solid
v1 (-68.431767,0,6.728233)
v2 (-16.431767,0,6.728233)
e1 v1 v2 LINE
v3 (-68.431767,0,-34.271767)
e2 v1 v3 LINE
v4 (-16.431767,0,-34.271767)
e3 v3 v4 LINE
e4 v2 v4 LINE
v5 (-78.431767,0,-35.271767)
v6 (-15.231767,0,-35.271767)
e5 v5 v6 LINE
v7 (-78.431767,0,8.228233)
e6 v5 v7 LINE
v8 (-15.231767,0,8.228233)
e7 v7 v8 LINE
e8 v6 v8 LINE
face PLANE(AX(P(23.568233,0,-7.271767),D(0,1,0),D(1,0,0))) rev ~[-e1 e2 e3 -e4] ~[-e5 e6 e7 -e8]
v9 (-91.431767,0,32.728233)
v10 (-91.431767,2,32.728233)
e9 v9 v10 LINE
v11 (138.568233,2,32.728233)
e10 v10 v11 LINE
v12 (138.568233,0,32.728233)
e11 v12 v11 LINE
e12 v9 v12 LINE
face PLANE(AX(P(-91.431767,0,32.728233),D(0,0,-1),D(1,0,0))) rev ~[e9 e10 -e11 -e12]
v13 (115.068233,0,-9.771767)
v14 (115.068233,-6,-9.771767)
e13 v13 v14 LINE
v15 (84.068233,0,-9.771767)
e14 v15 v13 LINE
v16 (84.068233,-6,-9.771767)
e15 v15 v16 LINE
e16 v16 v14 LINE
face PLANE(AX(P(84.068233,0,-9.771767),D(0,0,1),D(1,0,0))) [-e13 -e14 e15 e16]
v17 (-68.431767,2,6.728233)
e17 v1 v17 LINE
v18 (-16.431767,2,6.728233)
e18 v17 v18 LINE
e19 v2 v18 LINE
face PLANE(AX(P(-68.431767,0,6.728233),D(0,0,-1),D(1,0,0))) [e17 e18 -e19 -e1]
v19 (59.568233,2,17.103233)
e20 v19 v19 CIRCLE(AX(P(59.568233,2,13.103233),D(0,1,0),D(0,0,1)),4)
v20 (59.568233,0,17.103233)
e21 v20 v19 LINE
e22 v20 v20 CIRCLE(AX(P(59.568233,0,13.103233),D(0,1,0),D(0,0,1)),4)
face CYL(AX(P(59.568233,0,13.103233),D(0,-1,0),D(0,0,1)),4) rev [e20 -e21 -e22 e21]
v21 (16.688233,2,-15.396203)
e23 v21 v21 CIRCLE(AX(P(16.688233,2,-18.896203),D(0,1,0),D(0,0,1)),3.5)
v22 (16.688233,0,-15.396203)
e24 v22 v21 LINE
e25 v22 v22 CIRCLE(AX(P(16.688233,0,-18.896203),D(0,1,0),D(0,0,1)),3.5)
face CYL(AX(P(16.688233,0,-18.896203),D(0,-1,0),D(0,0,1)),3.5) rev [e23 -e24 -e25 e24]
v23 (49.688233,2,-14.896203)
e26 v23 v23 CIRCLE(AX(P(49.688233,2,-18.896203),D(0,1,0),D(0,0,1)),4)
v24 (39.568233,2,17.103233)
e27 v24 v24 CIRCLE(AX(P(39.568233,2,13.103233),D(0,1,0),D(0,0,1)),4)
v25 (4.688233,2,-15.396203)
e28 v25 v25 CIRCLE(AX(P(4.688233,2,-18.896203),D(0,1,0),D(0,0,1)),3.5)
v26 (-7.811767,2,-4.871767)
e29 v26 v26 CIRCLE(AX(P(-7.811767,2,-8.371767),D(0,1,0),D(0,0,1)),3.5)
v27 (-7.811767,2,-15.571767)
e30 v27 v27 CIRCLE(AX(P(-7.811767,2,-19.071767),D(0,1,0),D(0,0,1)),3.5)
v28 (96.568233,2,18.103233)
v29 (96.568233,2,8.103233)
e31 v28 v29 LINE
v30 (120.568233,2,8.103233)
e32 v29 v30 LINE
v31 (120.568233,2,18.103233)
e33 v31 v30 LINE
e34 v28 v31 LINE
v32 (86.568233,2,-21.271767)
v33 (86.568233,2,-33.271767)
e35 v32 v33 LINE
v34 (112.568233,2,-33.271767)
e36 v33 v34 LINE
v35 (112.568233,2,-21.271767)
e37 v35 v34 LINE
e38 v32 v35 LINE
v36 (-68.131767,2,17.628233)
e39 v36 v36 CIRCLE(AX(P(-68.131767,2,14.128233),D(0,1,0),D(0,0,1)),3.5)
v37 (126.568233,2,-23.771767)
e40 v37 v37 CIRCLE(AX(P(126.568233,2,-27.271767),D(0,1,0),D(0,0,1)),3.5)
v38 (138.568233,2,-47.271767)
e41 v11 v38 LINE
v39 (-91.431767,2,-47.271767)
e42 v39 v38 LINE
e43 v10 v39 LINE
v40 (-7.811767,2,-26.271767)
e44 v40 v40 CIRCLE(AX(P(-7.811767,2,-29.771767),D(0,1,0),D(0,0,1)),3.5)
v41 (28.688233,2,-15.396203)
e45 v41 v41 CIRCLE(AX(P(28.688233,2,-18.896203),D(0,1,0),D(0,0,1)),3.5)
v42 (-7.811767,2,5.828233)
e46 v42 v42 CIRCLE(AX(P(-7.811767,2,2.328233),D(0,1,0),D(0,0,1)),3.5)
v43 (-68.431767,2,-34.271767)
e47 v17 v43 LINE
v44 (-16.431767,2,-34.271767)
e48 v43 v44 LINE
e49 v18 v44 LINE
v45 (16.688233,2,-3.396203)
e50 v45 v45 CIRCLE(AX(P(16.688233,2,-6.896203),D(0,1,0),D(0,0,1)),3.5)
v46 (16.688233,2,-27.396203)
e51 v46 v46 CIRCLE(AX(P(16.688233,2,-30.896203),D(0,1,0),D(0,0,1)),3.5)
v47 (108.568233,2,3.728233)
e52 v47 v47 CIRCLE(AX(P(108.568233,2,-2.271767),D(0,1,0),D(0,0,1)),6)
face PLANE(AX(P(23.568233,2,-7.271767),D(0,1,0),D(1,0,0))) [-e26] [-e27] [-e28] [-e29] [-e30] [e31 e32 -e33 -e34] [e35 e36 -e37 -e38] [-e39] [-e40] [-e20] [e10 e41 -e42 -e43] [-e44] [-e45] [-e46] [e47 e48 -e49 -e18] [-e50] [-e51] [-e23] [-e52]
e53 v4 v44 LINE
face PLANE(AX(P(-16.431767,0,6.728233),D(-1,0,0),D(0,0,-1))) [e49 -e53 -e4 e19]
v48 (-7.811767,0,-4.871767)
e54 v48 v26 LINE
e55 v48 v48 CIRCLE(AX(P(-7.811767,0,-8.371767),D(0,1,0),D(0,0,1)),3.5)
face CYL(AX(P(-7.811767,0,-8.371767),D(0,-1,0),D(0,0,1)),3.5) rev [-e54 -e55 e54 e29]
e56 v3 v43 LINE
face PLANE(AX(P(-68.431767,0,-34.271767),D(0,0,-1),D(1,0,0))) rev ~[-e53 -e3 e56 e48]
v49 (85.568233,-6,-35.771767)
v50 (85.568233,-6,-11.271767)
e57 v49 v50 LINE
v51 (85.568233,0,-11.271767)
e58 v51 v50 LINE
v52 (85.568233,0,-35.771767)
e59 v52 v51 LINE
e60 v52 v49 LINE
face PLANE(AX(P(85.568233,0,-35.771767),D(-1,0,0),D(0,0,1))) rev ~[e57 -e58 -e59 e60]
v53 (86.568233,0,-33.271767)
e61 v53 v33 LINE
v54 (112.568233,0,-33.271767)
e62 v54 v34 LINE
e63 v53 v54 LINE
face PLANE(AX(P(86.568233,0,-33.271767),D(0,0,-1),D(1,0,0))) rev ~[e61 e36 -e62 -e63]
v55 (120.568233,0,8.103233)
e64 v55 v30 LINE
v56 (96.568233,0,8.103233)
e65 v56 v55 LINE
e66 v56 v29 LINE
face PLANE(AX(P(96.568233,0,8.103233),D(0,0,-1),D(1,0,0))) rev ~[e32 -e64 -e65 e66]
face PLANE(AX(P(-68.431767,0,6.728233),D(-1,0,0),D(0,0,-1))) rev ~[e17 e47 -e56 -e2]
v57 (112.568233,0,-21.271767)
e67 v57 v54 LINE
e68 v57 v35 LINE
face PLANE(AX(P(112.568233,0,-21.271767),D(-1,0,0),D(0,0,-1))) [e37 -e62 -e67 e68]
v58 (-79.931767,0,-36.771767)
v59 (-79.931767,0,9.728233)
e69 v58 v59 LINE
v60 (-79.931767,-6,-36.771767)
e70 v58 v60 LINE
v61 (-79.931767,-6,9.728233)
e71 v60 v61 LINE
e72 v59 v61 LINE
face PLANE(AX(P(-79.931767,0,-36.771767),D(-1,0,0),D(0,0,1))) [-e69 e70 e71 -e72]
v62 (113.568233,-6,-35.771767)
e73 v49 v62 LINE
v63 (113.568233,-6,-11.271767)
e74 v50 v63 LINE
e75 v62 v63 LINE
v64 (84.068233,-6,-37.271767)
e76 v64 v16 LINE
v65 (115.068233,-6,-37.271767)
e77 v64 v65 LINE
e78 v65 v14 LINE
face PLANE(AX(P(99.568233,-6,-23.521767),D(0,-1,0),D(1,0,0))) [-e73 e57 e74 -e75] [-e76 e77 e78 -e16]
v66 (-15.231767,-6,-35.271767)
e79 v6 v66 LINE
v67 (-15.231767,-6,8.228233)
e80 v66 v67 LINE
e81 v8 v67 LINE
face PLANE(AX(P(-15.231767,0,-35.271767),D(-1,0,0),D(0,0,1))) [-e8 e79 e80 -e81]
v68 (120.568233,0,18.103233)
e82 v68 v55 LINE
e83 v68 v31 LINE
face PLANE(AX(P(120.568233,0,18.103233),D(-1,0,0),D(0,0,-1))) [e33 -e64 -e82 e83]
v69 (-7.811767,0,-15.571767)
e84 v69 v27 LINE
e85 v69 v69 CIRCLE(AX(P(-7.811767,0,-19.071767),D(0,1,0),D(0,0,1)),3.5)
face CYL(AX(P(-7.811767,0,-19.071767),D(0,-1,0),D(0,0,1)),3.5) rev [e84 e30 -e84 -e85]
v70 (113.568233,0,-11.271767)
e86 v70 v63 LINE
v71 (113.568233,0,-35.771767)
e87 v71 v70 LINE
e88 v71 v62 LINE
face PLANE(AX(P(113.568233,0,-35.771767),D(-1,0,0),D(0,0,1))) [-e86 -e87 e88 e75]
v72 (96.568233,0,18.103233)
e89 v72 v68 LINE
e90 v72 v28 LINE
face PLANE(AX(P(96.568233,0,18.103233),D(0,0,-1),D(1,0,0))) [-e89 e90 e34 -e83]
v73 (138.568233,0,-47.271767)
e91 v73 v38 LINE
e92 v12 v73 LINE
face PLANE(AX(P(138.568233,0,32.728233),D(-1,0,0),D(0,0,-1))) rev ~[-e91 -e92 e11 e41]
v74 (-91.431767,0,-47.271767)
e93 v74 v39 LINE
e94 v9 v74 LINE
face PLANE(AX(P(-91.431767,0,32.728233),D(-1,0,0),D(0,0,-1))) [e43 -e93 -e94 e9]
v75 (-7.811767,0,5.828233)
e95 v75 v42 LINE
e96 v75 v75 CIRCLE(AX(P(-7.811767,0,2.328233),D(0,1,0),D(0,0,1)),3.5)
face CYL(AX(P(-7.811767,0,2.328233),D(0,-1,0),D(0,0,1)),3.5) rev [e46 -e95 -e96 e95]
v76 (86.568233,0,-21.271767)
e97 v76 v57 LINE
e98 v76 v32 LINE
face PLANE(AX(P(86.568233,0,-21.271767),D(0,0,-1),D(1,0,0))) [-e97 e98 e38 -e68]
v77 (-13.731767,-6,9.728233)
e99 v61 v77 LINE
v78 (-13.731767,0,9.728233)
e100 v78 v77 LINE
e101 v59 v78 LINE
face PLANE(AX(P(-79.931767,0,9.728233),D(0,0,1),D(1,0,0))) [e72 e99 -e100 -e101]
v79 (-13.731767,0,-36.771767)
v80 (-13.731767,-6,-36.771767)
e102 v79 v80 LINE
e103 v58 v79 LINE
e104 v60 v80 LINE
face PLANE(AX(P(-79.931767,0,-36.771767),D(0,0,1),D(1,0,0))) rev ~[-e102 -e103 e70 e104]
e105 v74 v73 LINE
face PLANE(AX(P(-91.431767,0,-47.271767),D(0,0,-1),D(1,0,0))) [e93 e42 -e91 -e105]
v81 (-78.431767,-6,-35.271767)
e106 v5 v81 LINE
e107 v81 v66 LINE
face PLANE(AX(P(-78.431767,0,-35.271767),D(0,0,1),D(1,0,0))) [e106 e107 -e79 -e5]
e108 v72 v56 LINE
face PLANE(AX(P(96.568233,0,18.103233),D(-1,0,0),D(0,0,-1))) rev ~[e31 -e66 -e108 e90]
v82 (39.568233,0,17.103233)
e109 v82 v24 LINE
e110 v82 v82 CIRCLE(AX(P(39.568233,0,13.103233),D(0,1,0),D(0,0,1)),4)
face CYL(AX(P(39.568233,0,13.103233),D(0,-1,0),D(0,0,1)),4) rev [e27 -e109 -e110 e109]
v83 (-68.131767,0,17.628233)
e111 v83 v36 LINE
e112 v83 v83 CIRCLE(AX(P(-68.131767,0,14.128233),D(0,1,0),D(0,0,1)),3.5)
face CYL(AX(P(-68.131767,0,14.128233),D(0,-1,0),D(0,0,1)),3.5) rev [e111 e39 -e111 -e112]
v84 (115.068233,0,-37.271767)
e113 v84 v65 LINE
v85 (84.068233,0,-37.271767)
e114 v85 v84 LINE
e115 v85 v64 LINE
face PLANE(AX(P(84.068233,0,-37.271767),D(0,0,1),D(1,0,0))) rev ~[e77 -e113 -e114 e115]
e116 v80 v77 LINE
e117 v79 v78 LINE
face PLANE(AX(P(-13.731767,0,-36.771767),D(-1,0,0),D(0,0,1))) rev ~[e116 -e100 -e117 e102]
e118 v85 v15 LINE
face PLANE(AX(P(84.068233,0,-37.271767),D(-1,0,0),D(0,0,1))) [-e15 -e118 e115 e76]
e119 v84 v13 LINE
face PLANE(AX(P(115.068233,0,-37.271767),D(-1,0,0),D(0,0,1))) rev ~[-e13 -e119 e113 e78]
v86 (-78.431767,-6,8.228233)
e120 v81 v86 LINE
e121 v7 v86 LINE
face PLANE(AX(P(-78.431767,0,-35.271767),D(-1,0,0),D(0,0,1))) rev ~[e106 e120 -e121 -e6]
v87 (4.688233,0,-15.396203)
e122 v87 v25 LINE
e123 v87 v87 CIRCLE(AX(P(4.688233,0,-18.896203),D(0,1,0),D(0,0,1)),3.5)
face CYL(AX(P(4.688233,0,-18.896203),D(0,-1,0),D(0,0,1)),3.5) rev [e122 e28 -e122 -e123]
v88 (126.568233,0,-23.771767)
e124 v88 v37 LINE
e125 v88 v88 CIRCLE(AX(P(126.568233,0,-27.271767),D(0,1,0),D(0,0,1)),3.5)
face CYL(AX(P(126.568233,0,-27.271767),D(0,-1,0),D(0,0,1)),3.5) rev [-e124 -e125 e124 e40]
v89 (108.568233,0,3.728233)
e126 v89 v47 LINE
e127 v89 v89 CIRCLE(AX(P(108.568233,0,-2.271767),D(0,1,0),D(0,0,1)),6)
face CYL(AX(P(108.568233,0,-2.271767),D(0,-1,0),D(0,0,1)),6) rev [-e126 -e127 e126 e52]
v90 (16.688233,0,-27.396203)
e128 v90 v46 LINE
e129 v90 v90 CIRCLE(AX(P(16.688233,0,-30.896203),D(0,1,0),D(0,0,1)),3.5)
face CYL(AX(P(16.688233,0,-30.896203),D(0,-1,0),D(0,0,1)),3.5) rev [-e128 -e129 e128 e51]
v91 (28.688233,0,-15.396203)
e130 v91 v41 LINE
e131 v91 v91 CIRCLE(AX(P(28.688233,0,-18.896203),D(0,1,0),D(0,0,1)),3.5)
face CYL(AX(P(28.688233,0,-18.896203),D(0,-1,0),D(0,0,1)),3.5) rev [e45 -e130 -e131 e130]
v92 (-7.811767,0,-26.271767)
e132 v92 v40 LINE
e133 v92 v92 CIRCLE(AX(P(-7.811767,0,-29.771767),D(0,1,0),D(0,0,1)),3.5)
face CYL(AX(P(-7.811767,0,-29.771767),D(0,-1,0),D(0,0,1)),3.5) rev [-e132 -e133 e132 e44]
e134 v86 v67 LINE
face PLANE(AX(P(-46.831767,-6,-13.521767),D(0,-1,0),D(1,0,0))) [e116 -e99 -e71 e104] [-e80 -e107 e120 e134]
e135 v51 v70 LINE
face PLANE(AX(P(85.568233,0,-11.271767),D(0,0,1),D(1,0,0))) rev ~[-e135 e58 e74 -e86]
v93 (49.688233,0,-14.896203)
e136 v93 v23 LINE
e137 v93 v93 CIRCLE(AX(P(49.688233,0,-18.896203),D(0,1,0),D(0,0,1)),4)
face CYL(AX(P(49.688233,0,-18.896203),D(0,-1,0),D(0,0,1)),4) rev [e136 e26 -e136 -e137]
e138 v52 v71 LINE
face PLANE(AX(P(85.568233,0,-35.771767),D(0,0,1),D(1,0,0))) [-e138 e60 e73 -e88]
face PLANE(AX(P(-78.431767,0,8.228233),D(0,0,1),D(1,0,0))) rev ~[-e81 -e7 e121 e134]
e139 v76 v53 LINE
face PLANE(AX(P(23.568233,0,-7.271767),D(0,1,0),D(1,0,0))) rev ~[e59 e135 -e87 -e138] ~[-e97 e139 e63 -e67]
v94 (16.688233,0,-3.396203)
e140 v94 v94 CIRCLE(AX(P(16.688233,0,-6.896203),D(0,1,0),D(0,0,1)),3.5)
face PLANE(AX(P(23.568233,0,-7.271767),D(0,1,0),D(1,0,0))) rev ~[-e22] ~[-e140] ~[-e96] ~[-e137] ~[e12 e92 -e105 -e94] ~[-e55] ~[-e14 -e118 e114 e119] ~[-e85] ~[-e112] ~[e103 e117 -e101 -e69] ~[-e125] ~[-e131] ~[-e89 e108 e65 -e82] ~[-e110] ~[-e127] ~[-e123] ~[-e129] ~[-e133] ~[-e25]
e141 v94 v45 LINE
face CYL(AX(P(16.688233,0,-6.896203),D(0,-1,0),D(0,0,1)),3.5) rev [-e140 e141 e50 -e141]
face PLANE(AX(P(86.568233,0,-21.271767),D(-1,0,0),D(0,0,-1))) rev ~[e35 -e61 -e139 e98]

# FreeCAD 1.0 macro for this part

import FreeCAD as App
import Part
import Sketcher

V = App.Vector
Q = App.Units.Quantity


def add_polygon(sketch, points):
    """Adds a closed chain of lines whose ends are joined by coincident constraints."""
    first, n = sketch.GeometryCount, len(points)
    for a, b in zip(points, points[1:] + points[:1]):
        sketch.addGeometry(Part.LineSegment(App.Vector(*a, 0), App.Vector(*b, 0)), False)
    for i in range(n):
        sketch.addConstraint(Sketcher.Constraint("Coincident", first + i, 2, first + (i + 1) % n, 1))

doc = App.newDocument("Part")
body = doc.addObject("PartDesign::Body", "Body")

# Sketch on XZ plane
sketch1 = body.newObject("Sketcher::SketchObject", "Sketch")
sketch1.AttachmentSupport = (doc.getObject("XZ_Plane"), [""])
sketch1.MapMode = "FlatFace"
add_polygon(sketch1, [(-91.4, -47.3), (-91.4, 32.7), (138.6, 32.7), (138.6, -47.3)])  # lines 0-3
sketch1.addGeometry(Part.Circle(V(-68.1, 14.1, 0), V(0, 0, 1), 3.5), False)  # 4
sketch1.addGeometry(Part.Circle(V(-7.8, 2.3, 0), V(0, 0, 1), 3.5), False)  # 5
sketch1.addGeometry(Part.Circle(V(16.7, -6.9, 0), V(0, 0, 1), 3.5), False)  # 6
sketch1.addGeometry(Part.Circle(V(39.6, 13.1, 0), V(0, 0, 1), 4), False)  # 7
sketch1.addGeometry(Part.Circle(V(59.6, 13.1, 0), V(0, 0, 1), 4), False)  # 8
add_polygon(sketch1, [(120.6, 18.1), (96.6, 18.1), (96.6, 8.1), (120.6, 8.1)])  # lines 9-12
sketch1.addGeometry(Part.Circle(V(108.6, -2.3, 0), V(0, 0, 1), 6), False)  # 13
add_polygon(sketch1, [(-16.4, 6.7), (-68.4, 6.7), (-68.4, -34.3), (-16.4, -34.3)])  # lines 14-17
sketch1.addGeometry(Part.Circle(V(-7.8, -8.4, 0), V(0, 0, 1), 3.5), False)  # 18
sketch1.addGeometry(Part.Circle(V(-7.8, -19.1, 0), V(0, 0, 1), 3.5), False)  # 19
sketch1.addGeometry(Part.Circle(V(4.7, -18.9, 0), V(0, 0, 1), 3.5), False)  # 20
sketch1.addGeometry(Part.Circle(V(16.7, -18.9, 0), V(0, 0, 1), 3.5), False)  # 21
sketch1.addGeometry(Part.Circle(V(28.7, -18.9, 0), V(0, 0, 1), 3.5), False)  # 22
sketch1.addGeometry(Part.Circle(V(-7.8, -29.8, 0), V(0, 0, 1), 3.5), False)  # 23
sketch1.addGeometry(Part.Circle(V(16.7, -30.9, 0), V(0, 0, 1), 3.5), False)  # 24
sketch1.addGeometry(Part.Circle(V(49.7, -18.9, 0), V(0, 0, 1), 4), False)  # 25
add_polygon(sketch1, [(112.6, -21.3), (86.6, -21.3), (86.6, -33.3), (112.6, -33.3)])  # lines 26-29
sketch1.addGeometry(Part.Circle(V(126.6, -27.3, 0), V(0, 0, 1), 3.5), False)  # 30
sketch1.addConstraint(Sketcher.Constraint("Vertical", 0))
sketch1.addConstraint(Sketcher.Constraint("Horizontal", 1))
sketch1.addConstraint(Sketcher.Constraint("Vertical", 2))
sketch1.addConstraint(Sketcher.Constraint("Horizontal", 3))
sketch1.addConstraint(Sketcher.Constraint("Horizontal", 9))
sketch1.addConstraint(Sketcher.Constraint("Vertical", 10))
sketch1.addConstraint(Sketcher.Constraint("Horizontal", 11))
sketch1.addConstraint(Sketcher.Constraint("Vertical", 12))
sketch1.addConstraint(Sketcher.Constraint("Horizontal", 14))
sketch1.addConstraint(Sketcher.Constraint("Vertical", 15))
sketch1.addConstraint(Sketcher.Constraint("Horizontal", 16))
sketch1.addConstraint(Sketcher.Constraint("Vertical", 17))
sketch1.addConstraint(Sketcher.Constraint("Horizontal", 26))
sketch1.addConstraint(Sketcher.Constraint("Vertical", 27))
sketch1.addConstraint(Sketcher.Constraint("Horizontal", 28))
sketch1.addConstraint(Sketcher.Constraint("Vertical", 29))
sketch1.addConstraint(Sketcher.Constraint("Equal", 4, 5))
sketch1.addConstraint(Sketcher.Constraint("Equal", 5, 6))
sketch1.addConstraint(Sketcher.Constraint("Equal", 7, 8))
sketch1.addConstraint(Sketcher.Constraint("Equal", 6, 18))
sketch1.addConstraint(Sketcher.Constraint("Equal", 18, 19))
sketch1.addConstraint(Sketcher.Constraint("Equal", 19, 20))
sketch1.addConstraint(Sketcher.Constraint("Equal", 20, 21))
sketch1.addConstraint(Sketcher.Constraint("Equal", 21, 22))
sketch1.addConstraint(Sketcher.Constraint("Equal", 22, 23))
sketch1.addConstraint(Sketcher.Constraint("Equal", 23, 24))
sketch1.addConstraint(Sketcher.Constraint("Equal", 8, 25))
sketch1.addConstraint(Sketcher.Constraint("Equal", 24, 30))
sketch1.addConstraint(Sketcher.Constraint("Horizontal", 7, 3, 8, 3))
sketch1.addConstraint(Sketcher.Constraint("Horizontal", 20, 3, 21, 3))
sketch1.addConstraint(Sketcher.Constraint("Horizontal", 21, 3, 22, 3))
sketch1.addConstraint(Sketcher.Constraint("Horizontal", 22, 3, 25, 3))
sketch1.addConstraint(Sketcher.Constraint("Vertical", 5, 3, 18, 3))
sketch1.addConstraint(Sketcher.Constraint("Vertical", 18, 3, 19, 3))
sketch1.addConstraint(Sketcher.Constraint("Vertical", 6, 3, 21, 3))
sketch1.addConstraint(Sketcher.Constraint("Vertical", 19, 3, 23, 3))
sketch1.addConstraint(Sketcher.Constraint("Vertical", 21, 3, 24, 3))
sketch1.addConstraint(Sketcher.Constraint("Diameter", 4, Q("7 mm")))
sketch1.addConstraint(Sketcher.Constraint("Diameter", 7, Q("8 mm")))
sketch1.addConstraint(Sketcher.Constraint("Diameter", 13, Q("12 mm")))
sketch1.addConstraint(Sketcher.Constraint("DistanceX", 1, 1, 1, 2, Q("230 mm")))
sketch1.addConstraint(Sketcher.Constraint("DistanceX", 9, 2, 9, 1, Q("24 mm")))
sketch1.addConstraint(Sketcher.Constraint("DistanceX", 14, 2, 14, 1, Q("52 mm")))
sketch1.addConstraint(Sketcher.Constraint("DistanceX", 26, 2, 26, 1, Q("26 mm")))
sketch1.addConstraint(Sketcher.Constraint("DistanceY", 0, 1, 0, 2, Q("80 mm")))
sketch1.addConstraint(Sketcher.Constraint("DistanceY", 10, 2, 10, 1, Q("10 mm")))
sketch1.addConstraint(Sketcher.Constraint("DistanceY", 15, 2, 15, 1, Q("41 mm")))
sketch1.addConstraint(Sketcher.Constraint("DistanceY", 27, 2, 27, 1, Q("12 mm")))
sketch1.addConstraint(Sketcher.Constraint("DistanceX", 7, 3, 8, 3, Q("20 mm")))
sketch1.addConstraint(Sketcher.Constraint("DistanceX", 8, 3, 13, 3, Q("49 mm")))
sketch1.addConstraint(Sketcher.Constraint("DistanceX", 20, 3, 6, 3, Q("12 mm")))
sketch1.addConstraint(Sketcher.Constraint("DistanceY", 20, 3, 6, 3, Q("12 mm")))
sketch1.addConstraint(Sketcher.Constraint("DistanceX", 21, 3, 22, 3, Q("12 mm")))
sketch1.addConstraint(Sketcher.Constraint("DistanceY", 24, 3, 21, 3, Q("12 mm")))
sketch1.addConstraint(Sketcher.Constraint("DistanceX", 22, 3, 25, 3, Q("21 mm")))
sketch1.addConstraint(Sketcher.Constraint("DistanceX", 13, 3, 30, 3, Q("18 mm")))
sketch1.addConstraint(Sketcher.Constraint("DistanceY", 30, 3, 13, 3, Q("25 mm")))
sketch1.addConstraint(Sketcher.Constraint("DistanceX", 13, 3, 1, 2, Q("30 mm")))
sketch1.addConstraint(Sketcher.Constraint("DistanceY", 13, 3, 1, 2, Q("35 mm")))
sketch1.addConstraint(Sketcher.Constraint("DistanceX", 9, 2, 13, 3, Q("12 mm")))
sketch1.addConstraint(Sketcher.Constraint("DistanceY", 8, 3, 9, 2, Q("5 mm")))
sketch1.addConstraint(Sketcher.Constraint("DistanceX", 0, 2, 14, 2, Q("23 mm")))
sketch1.addConstraint(Sketcher.Constraint("DistanceY", 14, 2, 0, 2, Q("26 mm")))
sketch1.addConstraint(Sketcher.Constraint("DistanceX", 26, 2, 13, 3, Q("22 mm")))
sketch1.addConstraint(Sketcher.Constraint("DistanceY", 26, 2, 13, 3, Q("19 mm")))
sketch1.addConstraint(Sketcher.Constraint("DistanceY", 5, 3, 4, 3, Q("11.8 mm")))
sketch1.addConstraint(Sketcher.Constraint("DistanceX", 5, 3, 6, 3, Q("24.5 mm")))
sketch1.addConstraint(Sketcher.Constraint("DistanceX", 4, 3, 7, 3, Q("107.7 mm")))
sketch1.addConstraint(Sketcher.Constraint("DistanceY", 13, 3, 5, 3, Q("4.6 mm")))
sketch1.addConstraint(Sketcher.Constraint("DistanceY", 18, 3, 5, 3, Q("10.7 mm")))
sketch1.addConstraint(Sketcher.Constraint("DistanceY", 19, 3, 18, 3, Q("10.7 mm")))
sketch1.addConstraint(Sketcher.Constraint("DistanceY", 23, 3, 19, 3, Q("10.7 mm")))
sketch1.addConstraint(Sketcher.Constraint("DistanceX", 4, 3, 5, 3, Q("60.32 mm")))
sketch1.addConstraint(Sketcher.Constraint("DistanceY", 5, 3, 7, 3, Q("10.775 mm")))
sketch1.addConstraint(Sketcher.Constraint("DistanceX", 4, 3, -1, 1, Q("68.131767 mm")))
sketch1.addConstraint(Sketcher.Constraint("DistanceY", -1, 1, 4, 3, Q("14.128233 mm")))
sketch1.addConstraint(Sketcher.Constraint("DistanceY", 6, 3, -1, 1, Q("6.896203 mm")))
pad1 = body.newObject("PartDesign::Pad", "Pad")
pad1.Profile = sketch1
pad1.Length = 2
pad1.Reversed = True

# Sketch on XZ plane
sketch2 = body.newObject("Sketcher::SketchObject", "Sketch001")
sketch2.AttachmentSupport = (doc.getObject("XZ_Plane"), [""])
sketch2.MapMode = "FlatFace"
add_polygon(sketch2, [(-80, 10), (-80, -37), (-14, -37), (-14, 10)])  # lines 0-3
add_polygon(sketch2, [(-15, -35), (-78, -35), (-78, 8), (-15, 8)])  # lines 4-7
add_polygon(sketch2, [(84, -10), (84, -37), (115, -37), (115, -10)])  # lines 8-11
add_polygon(sketch2, [(114, -36), (86, -36), (86, -11), (114, -11)])  # lines 12-15
sketch2.addConstraint(Sketcher.Constraint("Vertical", 0))
sketch2.addConstraint(Sketcher.Constraint("Horizontal", 1))
sketch2.addConstraint(Sketcher.Constraint("Vertical", 2))
sketch2.addConstraint(Sketcher.Constraint("Horizontal", 3))
sketch2.addConstraint(Sketcher.Constraint("Horizontal", 4))
sketch2.addConstraint(Sketcher.Constraint("Vertical", 5))
sketch2.addConstraint(Sketcher.Constraint("Horizontal", 6))
sketch2.addConstraint(Sketcher.Constraint("Vertical", 7))
sketch2.addConstraint(Sketcher.Constraint("Vertical", 8))
sketch2.addConstraint(Sketcher.Constraint("Horizontal", 9))
sketch2.addConstraint(Sketcher.Constraint("Vertical", 10))
sketch2.addConstraint(Sketcher.Constraint("Horizontal", 11))
sketch2.addConstraint(Sketcher.Constraint("Horizontal", 12))
sketch2.addConstraint(Sketcher.Constraint("Vertical", 13))
sketch2.addConstraint(Sketcher.Constraint("Horizontal", 14))
sketch2.addConstraint(Sketcher.Constraint("Vertical", 15))
sketch2.addConstraint(Sketcher.Constraint("DistanceX", 9, 1, 9, 2, Q("31 mm")))
sketch2.addConstraint(Sketcher.Constraint("DistanceX", 12, 2, 12, 1, Q("28 mm")))
sketch2.addConstraint(Sketcher.Constraint("DistanceX", 1, 1, 1, 2, Q("66.2 mm")))
sketch2.addConstraint(Sketcher.Constraint("DistanceX", 4, 2, 4, 1, Q("63.2 mm")))
sketch2.addConstraint(Sketcher.Constraint("DistanceY", 0, 2, 0, 1, Q("46.5 mm")))
sketch2.addConstraint(Sketcher.Constraint("DistanceY", 5, 1, 5, 2, Q("43.5 mm")))
sketch2.addConstraint(Sketcher.Constraint("DistanceY", 8, 2, 8, 1, Q("27.5 mm")))
sketch2.addConstraint(Sketcher.Constraint("DistanceY", 13, 1, 13, 2, Q("24.5 mm")))
sketch2.addConstraint(Sketcher.Constraint("DistanceY", 4, 2, 3, 2, Q("45 mm")))
sketch2.addConstraint(Sketcher.Constraint("DistanceY", 8, 2, 7, 2, Q("2 mm")))
sketch2.addConstraint(Sketcher.Constraint("DistanceY", 12, 2, 11, 2, Q("26 mm")))
sketch2.addConstraint(Sketcher.Constraint("DistanceX", 0, 2, 4, 2, Q("1.5 mm")))
sketch2.addConstraint(Sketcher.Constraint("DistanceX", 1, 2, 8, 2, Q("97.8 mm")))
sketch2.addConstraint(Sketcher.Constraint("DistanceX", 8, 2, 12, 2, Q("1.5 mm")))
sketch2.addConstraint(Sketcher.Constraint("DistanceX", 0, 2, -1, 1, Q("79.931767 mm")))
sketch2.addConstraint(Sketcher.Constraint("DistanceY", 0, 2, -1, 1, Q("36.771767 mm")))
pad2 = body.newObject("PartDesign::Pad", "Pad001")
pad2.Profile = sketch2
pad2.Length = 6

doc.recompute()
